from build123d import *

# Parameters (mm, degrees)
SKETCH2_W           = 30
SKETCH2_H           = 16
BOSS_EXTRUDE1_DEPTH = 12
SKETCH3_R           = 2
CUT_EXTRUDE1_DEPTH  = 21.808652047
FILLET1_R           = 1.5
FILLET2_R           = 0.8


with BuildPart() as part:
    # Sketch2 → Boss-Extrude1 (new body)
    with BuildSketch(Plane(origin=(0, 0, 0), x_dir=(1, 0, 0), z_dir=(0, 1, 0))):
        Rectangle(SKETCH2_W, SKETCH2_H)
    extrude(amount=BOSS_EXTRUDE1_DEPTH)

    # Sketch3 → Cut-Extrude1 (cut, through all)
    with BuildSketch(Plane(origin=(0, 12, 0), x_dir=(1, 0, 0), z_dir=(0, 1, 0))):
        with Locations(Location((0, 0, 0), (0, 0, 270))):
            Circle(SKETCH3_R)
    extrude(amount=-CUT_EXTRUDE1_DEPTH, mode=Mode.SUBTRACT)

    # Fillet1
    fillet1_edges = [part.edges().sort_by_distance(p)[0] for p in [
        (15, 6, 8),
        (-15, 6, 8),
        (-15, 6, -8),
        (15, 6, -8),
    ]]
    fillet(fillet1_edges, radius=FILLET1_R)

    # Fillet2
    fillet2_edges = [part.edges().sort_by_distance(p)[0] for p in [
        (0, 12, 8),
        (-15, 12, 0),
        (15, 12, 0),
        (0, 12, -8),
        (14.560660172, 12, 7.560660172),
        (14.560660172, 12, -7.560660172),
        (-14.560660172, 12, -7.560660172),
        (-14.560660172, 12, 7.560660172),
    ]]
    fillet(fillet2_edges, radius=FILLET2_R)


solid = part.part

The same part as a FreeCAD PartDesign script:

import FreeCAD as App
import Part
import Sketcher
from FreeCAD import Vector
Q = App.Units.Quantity


def edges_at(feature, points):
    """Names of the edges that pass closest to the given points."""
    edges = feature.Shape.Edges
    near = lambda p: min(range(len(edges)), key=lambda i: edges[i].distToShape(Part.Vertex(*p))[0])
    return sorted({f"Edge{near(p) + 1}" for p in points})


def add_polygon(sketch, points):
    """Adds a closed chain of lines whose ends are joined by coincident constraints."""
    first, n = sketch.GeometryCount, len(points)
    for a, b in zip(points, points[1:] + points[:1]):
        sketch.addGeometry(Part.LineSegment(App.Vector(*a, 0), App.Vector(*b, 0)), False)
    for i in range(n):
        sketch.addConstraint(Sketcher.Constraint("Coincident", first + i, 2, first + (i + 1) % n, 1))

doc = App.newDocument("Part")
params = doc.addObject("Spreadsheet::Sheet", "Params")
for row, (alias, value) in enumerate([
    ("sketch1_width", "30 mm"),
    ("sketch1_height", "16 mm"),
    ("pad1_length", "12 mm"),
    ("sketch2_diameter", "4 mm"),
    ("fillet_radius", "1.5 mm"),
    ("fillet2_radius", "0.8 mm"),
], start=1):
    params.set(f"A{row}", alias)
    params.set(f"B{row}", "=" + value)
    params.setAlias(f"B{row}", alias)

body = doc.addObject("PartDesign::Body", "Body")

sketch1 = body.newObject("Sketcher::SketchObject", "Sketch")
sketch1.AttachmentSupport = (doc.getObject("XZ_Plane"), [""])
sketch1.MapMode = "FlatFace"
add_polygon(sketch1, [(-15, -8), (-15, 8), (15, 8), (15, -8)])
sketch1.addConstraint([
    Sketcher.Constraint("Vertical", 0),
    Sketcher.Constraint("Horizontal", 1),
    Sketcher.Constraint("Vertical", 2),
    Sketcher.Constraint("Horizontal", 3),
    Sketcher.Constraint("Symmetric", 0, 2, 2, 2, -1, 1),
    Sketcher.Constraint("DistanceX", 1, 1, 1, 2, Q("30 mm")),
    Sketcher.Constraint("DistanceY", 0, 1, 0, 2, Q("16 mm")),
])
sketch1.setExpression("Constraints[9]", "Params.sketch1_width")
sketch1.setExpression("Constraints[10]", "Params.sketch1_height")
pad1 = body.newObject("PartDesign::Pad", "Pad")
pad1.Profile = sketch1
pad1.setExpression("Length", "Params.pad1_length")
pad1.Reversed = True

sketch2 = body.newObject("Sketcher::SketchObject", "Sketch001")
sketch2.AttachmentSupport = (doc.getObject("XZ_Plane"), [""])
sketch2.MapMode = "FlatFace"
sketch2.AttachmentOffset = App.Placement(Vector(0, 0, -12), App.Rotation())
sketch2.addGeometry(Part.Circle(Vector(0, 0, 0), Vector(0, 0, 1), 2), False)
sketch2.addConstraint([
    Sketcher.Constraint("Coincident", 0, 3, -1, 1),
    Sketcher.Constraint("Diameter", 0, Q("4 mm")),
])
sketch2.setExpression("Constraints[1]", "Params.sketch2_diameter")
pocket1 = body.newObject("PartDesign::Pocket", "Pocket")
pocket1.Profile = sketch2
pocket1.Type = "ThroughAll"
pocket1.Reversed = True
doc.recompute()

fillet = body.newObject("PartDesign::Fillet", "Fillet")
fillet.Base = (pocket1, edges_at(pocket1, [
    (15, 6, 8),
    (-15, 6, 8),
    (-15, 6, -8),
    (15, 6, -8),
]))
fillet.setExpression("Radius", "Params.fillet_radius")
doc.recompute()

fillet2 = body.newObject("PartDesign::Fillet", "Fillet001")
fillet2.Base = (fillet, edges_at(fillet, [
    (0, 12, 8),
    (-15, 12, 0),
    (15, 12, 0),
    (0, 12, -8),
    (14.561, 12, 7.561),
    (14.561, 12, -7.561),
    (-14.561, 12, -7.561),
    (-14.561, 12, 7.561),
]))
fillet2.setExpression("Radius", "Params.fillet2_radius")

doc.recompute()
